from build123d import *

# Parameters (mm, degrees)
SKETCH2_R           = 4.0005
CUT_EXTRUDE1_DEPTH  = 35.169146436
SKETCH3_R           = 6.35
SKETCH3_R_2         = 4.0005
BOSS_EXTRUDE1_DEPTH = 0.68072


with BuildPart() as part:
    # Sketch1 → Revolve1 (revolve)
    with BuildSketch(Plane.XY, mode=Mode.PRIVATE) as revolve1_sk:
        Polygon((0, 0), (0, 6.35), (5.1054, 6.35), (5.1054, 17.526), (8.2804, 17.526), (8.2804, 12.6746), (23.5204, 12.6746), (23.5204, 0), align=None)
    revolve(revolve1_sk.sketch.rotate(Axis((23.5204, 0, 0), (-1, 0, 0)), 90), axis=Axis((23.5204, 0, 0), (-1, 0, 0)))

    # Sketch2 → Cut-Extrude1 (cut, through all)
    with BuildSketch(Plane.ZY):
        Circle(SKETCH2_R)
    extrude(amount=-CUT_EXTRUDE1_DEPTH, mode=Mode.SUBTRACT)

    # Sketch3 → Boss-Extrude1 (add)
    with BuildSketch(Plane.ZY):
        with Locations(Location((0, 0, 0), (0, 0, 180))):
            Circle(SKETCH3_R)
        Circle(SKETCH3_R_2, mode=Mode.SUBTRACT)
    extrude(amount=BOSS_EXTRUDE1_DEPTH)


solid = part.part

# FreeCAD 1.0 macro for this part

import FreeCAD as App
import Part
import Sketcher
Q = App.Units.Quantity


def add_polygon(sketch, points):
    """Adds a closed chain of lines whose ends are joined by coincident constraints."""
    first, n = sketch.GeometryCount, len(points)
    for a, b in zip(points, points[1:] + points[:1]):
        sketch.addGeometry(Part.LineSegment(App.Vector(*a, 0), App.Vector(*b, 0)), False)
    for i in range(n):
        sketch.addConstraint(Sketcher.Constraint("Coincident", first + i, 2, first + (i + 1) % n, 1))

doc = App.newDocument("Part")
body = doc.addObject("PartDesign::Body", "Body")

sketch1 = doc.addObject("Sketcher::SketchObject", "Sketch")
body.addObject(sketch1)
sketch1.AttachmentSupport = (doc.XY_Plane, [""])
sketch1.MapMode = "FlatFace"
add_polygon(sketch1, [(0, 6.35), (0, 0), (23.5204, 0), (23.5204, 12.6746), (8.2804, 12.6746), (8.2804, 17.526), (5.1054, 17.526), (5.1054, 6.35)])
sketch1.addConstraint([
    Sketcher.Constraint("Vertical", 0),
    Sketcher.Constraint("Horizontal", 1),
    Sketcher.Constraint("Vertical", 2),
    Sketcher.Constraint("Horizontal", 3),
    Sketcher.Constraint("Vertical", 4),
    Sketcher.Constraint("Horizontal", 5),
    Sketcher.Constraint("Vertical", 6),
    Sketcher.Constraint("Horizontal", 7),
    Sketcher.Constraint("Coincident", 0, 2, -1, 1),
    Sketcher.Constraint("DistanceX", 3, 2, 3, 1, Q("0.6 in")),
    Sketcher.Constraint("DistanceY", 0, 2, 0, 1, Q("0.25 in")),
    Sketcher.Constraint("DistanceY", 6, 2, 6, 1, Q("0.44 in")),
    Sketcher.Constraint("DistanceX", 1, 1, 1, 2, Q("0.926 in")),
    Sketcher.Constraint("DistanceX", 5, 2, 5, 1, Q("0.125 in")),
    Sketcher.Constraint("DistanceY", 2, 1, 2, 2, Q("0.499 in")),
])
revolution = doc.addObject("PartDesign::Revolution", "Revolution")
body.addObject(revolution)
revolution.Profile = sketch1
revolution.ReferenceAxis = (sketch1, ["H_Axis"])
revolution.Angle = 360

sketch2 = doc.addObject("Sketcher::SketchObject", "Sketch001")
body.addObject(sketch2)
sketch2.AttachmentSupport = (doc.YZ_Plane, [""])
sketch2.MapMode = "FlatFace"
sketch2.addGeometry(Part.Circle(App.Vector(0, 0, 0), App.Vector(0, 0, 1), 4.0005), False)
sketch2.addConstraint([
    Sketcher.Constraint("Coincident", 0, 3, -1, 1),
    Sketcher.Constraint("Diameter", 0, Q("0.315 in")),
])
pocket1 = doc.addObject("PartDesign::Pocket", "Pocket")
body.addObject(pocket1)
pocket1.Profile = sketch2
pocket1.Type = "ThroughAll"
pocket1.Reversed = True

sketch3 = doc.addObject("Sketcher::SketchObject", "Sketch002")
body.addObject(sketch3)
sketch3.AttachmentSupport = (doc.YZ_Plane, [""])
sketch3.MapMode = "FlatFace"
sketch3.addGeometry([
    Part.Circle(App.Vector(0, 0, 0), App.Vector(0, 0, 1), 6.35),
    Part.Circle(App.Vector(0, 0, 0), App.Vector(0, 0, 1), 4.0005),
], False)
sketch3.addConstraint([
    Sketcher.Constraint("Coincident", 0, 3, -1, 1),
    Sketcher.Constraint("Coincident", 1, 3, -1, 1),
    Sketcher.Constraint("Diameter", 0, Q("0.5 in")),
    Sketcher.Constraint("Diameter", 1, Q("0.315 in")),
])
pad1 = doc.addObject("PartDesign::Pad", "Pad")
body.addObject(pad1)
pad1.Profile = sketch3
pad1.Length = Q("0.0268 in")
pad1.Reversed = True

doc.recompute()
